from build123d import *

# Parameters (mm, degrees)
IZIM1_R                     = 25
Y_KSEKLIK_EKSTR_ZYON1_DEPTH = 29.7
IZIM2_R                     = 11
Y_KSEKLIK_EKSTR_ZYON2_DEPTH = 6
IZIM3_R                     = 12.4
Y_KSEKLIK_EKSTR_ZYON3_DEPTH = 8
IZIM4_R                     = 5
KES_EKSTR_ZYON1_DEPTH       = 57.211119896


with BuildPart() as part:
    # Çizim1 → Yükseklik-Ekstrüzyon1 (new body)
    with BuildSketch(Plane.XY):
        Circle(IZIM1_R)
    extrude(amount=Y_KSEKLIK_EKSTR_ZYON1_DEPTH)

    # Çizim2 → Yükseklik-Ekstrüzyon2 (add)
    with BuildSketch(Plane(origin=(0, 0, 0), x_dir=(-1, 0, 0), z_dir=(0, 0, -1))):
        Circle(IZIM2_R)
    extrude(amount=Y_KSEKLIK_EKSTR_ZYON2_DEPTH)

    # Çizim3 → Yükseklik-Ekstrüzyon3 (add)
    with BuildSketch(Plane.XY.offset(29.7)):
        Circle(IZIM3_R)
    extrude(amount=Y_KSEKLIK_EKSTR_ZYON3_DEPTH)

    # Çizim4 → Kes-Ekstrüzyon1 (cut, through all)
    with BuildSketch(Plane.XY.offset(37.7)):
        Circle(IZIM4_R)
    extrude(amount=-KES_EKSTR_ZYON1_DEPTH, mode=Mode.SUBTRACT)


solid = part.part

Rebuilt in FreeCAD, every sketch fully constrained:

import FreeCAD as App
import Part
import Sketcher
from FreeCAD import Vector

doc = App.newDocument("Part")
body = doc.addObject("PartDesign::Body", "Body")

# Sketch on XY plane
sketch1 = body.newObject("Sketcher::SketchObject", "Sketch")
sketch1.AttachmentSupport = (doc.getObject("XY_Plane"), [""])
sketch1.MapMode = "FlatFace"
sketch1.addGeometry(Part.Circle(Vector(0, 0, 0), Vector(0, 0, 1), 25), False)
sketch1.addConstraint([
    Sketcher.Constraint("Coincident", 0, 3, -1, 1),
    Sketcher.Constraint("Diameter", 0, 50.0),
])
pad1 = body.newObject("PartDesign::Pad", "Pad")
pad1.Profile = sketch1
pad1.Length = 29.7

# Sketch on XY plane
sketch2 = body.newObject("Sketcher::SketchObject", "Sketch001")
sketch2.AttachmentSupport = (doc.getObject("XY_Plane"), [""])
sketch2.MapMode = "FlatFace"
sketch2.addGeometry(Part.Circle(Vector(0, 0, 0), Vector(0, 0, 1), 11), False)
sketch2.addConstraint([
    Sketcher.Constraint("Coincident", 0, 3, -1, 1),
    Sketcher.Constraint("Diameter", 0, 22.0),
])
pad2 = body.newObject("PartDesign::Pad", "Pad001")
pad2.Profile = sketch2
pad2.Length = 6
pad2.Reversed = True

# Sketch on XY plane
sketch3 = body.newObject("Sketcher::SketchObject", "Sketch002")
sketch3.AttachmentSupport = (doc.getObject("XY_Plane"), [""])
sketch3.MapMode = "FlatFace"
sketch3.AttachmentOffset = App.Placement(Vector(0, 0, 29.7), App.Rotation())
sketch3.addGeometry(Part.Circle(Vector(0, 0, 0), Vector(0, 0, 1), 12), False)
sketch3.addConstraint([
    Sketcher.Constraint("Coincident", 0, 3, -1, 1),
    Sketcher.Constraint("Diameter", 0, 24.8),
])
pad3 = body.newObject("PartDesign::Pad", "Pad002")
pad3.Profile = sketch3
pad3.Length = 8

# Sketch on XY plane
sketch4 = body.newObject("Sketcher::SketchObject", "Sketch003")
sketch4.AttachmentSupport = (doc.getObject("XY_Plane"), [""])
sketch4.MapMode = "FlatFace"
sketch4.AttachmentOffset = App.Placement(Vector(0, 0, 37.7), App.Rotation())
sketch4.addGeometry(Part.Circle(Vector(0, 0, 0), Vector(0, 0, 1), 5), False)
sketch4.addConstraint([
    Sketcher.Constraint("Coincident", 0, 3, -1, 1),
    Sketcher.Constraint("Diameter", 0, 10.0),
])
pocket1 = body.newObject("PartDesign::Pocket", "Pocket")
pocket1.Profile = sketch4
pocket1.Type = "ThroughAll"

doc.recompute()
